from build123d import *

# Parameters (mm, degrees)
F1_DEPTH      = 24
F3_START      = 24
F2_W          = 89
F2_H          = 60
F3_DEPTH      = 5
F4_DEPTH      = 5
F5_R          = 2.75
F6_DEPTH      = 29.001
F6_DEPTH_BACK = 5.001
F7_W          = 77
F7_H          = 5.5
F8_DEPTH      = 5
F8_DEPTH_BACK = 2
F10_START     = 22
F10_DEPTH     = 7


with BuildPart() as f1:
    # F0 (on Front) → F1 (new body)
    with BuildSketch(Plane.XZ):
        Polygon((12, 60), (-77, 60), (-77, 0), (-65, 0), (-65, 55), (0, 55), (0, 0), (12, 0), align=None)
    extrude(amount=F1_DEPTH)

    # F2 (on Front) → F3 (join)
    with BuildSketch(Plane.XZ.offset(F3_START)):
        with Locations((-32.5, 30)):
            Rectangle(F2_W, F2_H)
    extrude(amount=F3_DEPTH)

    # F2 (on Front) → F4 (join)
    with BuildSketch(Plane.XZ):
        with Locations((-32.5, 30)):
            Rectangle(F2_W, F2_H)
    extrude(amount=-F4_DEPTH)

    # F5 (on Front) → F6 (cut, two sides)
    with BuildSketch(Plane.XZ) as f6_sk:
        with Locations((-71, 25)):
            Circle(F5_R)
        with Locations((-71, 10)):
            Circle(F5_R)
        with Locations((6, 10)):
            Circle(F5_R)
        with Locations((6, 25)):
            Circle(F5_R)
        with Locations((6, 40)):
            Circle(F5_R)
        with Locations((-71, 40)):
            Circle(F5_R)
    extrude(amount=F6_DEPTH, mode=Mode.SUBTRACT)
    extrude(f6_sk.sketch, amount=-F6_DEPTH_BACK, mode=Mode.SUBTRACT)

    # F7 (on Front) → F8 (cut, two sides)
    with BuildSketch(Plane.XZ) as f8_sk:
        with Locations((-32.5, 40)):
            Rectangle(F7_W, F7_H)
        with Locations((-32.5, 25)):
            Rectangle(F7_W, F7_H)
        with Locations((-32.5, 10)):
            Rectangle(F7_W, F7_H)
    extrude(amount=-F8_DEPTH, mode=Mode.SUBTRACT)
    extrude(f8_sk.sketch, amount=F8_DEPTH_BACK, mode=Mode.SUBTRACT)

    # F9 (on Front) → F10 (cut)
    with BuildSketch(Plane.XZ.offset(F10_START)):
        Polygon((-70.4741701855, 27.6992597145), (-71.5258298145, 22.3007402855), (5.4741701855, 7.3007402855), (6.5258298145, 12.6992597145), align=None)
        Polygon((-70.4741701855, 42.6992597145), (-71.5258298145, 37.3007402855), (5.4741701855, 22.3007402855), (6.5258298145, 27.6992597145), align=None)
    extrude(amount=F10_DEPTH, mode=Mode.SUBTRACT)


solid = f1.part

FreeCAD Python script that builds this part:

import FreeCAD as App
import Part
import Sketcher

V = App.Vector

doc = App.newDocument("Part")
body = doc.addObject("PartDesign::Body", "Body")

# Sketch on XZ plane
sketch1 = body.newObject("Sketcher::SketchObject", "Sketch")
sketch1.AttachmentSupport = (doc.getObject("XZ_Plane"), [""])
sketch1.MapMode = "FlatFace"
sketch1.addGeometry([
    Part.LineSegment(V(12, 60, 0), V(-77, 60, 0)),  # 0
    Part.LineSegment(V(-77, 60, 0), V(-77, 0, 0)),  # 1
    Part.LineSegment(V(-77, 0, 0), V(-65, 0, 0)),  # 2
    Part.LineSegment(V(-65, 0, 0), V(-65, 55, 0)),  # 3
    Part.LineSegment(V(-65, 55, 0), V(0, 55, 0)),  # 4
    Part.LineSegment(V(0, 55, 0), V(0, 0, 0)),  # 5
    Part.LineSegment(V(0, 0, 0), V(12, 0, 0)),  # 6
    Part.LineSegment(V(12, 0, 0), V(12, 60, 0)),  # 7
], False)
sketch1.addConstraint([
    Sketcher.Constraint("Coincident", 0, 2, 1, 1),
    Sketcher.Constraint("Coincident", 1, 2, 2, 1),
    Sketcher.Constraint("Coincident", 2, 2, 3, 1),
    Sketcher.Constraint("Coincident", 3, 2, 4, 1),
    Sketcher.Constraint("Coincident", 4, 2, 5, 1),
    Sketcher.Constraint("Coincident", 5, 2, 6, 1),
    Sketcher.Constraint("Coincident", 6, 2, 7, 1),
    Sketcher.Constraint("Coincident", 7, 2, 0, 1),
    Sketcher.Constraint("Horizontal", 0),
    Sketcher.Constraint("Vertical", 1),
    Sketcher.Constraint("Horizontal", 2),
    Sketcher.Constraint("Vertical", 3),
    Sketcher.Constraint("Horizontal", 4),
    Sketcher.Constraint("Vertical", 5),
    Sketcher.Constraint("Horizontal", 6),
    Sketcher.Constraint("Vertical", 7),
    Sketcher.Constraint("Coincident", 5, 2, -1, 1),
    Sketcher.Constraint("PointOnObject", 1, 2, -1),
    Sketcher.Constraint("Equal", 2, 6),
    Sketcher.Constraint("DistanceX", 0, 2, 0, 1, 89.0),
    Sketcher.Constraint("DistanceX", 2, 1, 2, 2, 12.0),
    Sketcher.Constraint("DistanceY", 1, 2, 1, 1, 60.0),
    Sketcher.Constraint("DistanceY", 3, 1, 3, 2, 55.0),
])
pad1 = body.newObject("PartDesign::Pad", "Pad")
pad1.Profile = sketch1
pad1.Length = 24

# Sketch on XZ plane
sketch2 = body.newObject("Sketcher::SketchObject", "Sketch001")
sketch2.AttachmentSupport = (doc.getObject("XZ_Plane"), [""])
sketch2.MapMode = "FlatFace"
sketch2.AttachmentOffset = App.Placement(V(0, 0, 24), App.Rotation())
sketch2.addGeometry([
    Part.LineSegment(V(-77, 60, 0), V(-77, 0, 0)),
    Part.LineSegment(V(-77, 0, 0), V(12, 0, 0)),
    Part.LineSegment(V(12, 0, 0), V(12, 60, 0)),
    Part.LineSegment(V(12, 60, 0), V(-77, 60, 0)),
], False)
sketch2.addConstraint([
    Sketcher.Constraint("Coincident", 0, 2, 1, 1),
    Sketcher.Constraint("Coincident", 1, 2, 2, 1),
    Sketcher.Constraint("Coincident", 2, 2, 3, 1),
    Sketcher.Constraint("Coincident", 3, 2, 0, 1),
    Sketcher.Constraint("Vertical", 0),
    Sketcher.Constraint("Horizontal", 1),
    Sketcher.Constraint("Vertical", 2),
    Sketcher.Constraint("Horizontal", 3),
    Sketcher.Constraint("PointOnObject", 0, 2, -1),
    Sketcher.Constraint("DistanceX", 1, 1, 1, 2, 89.0),
    Sketcher.Constraint("DistanceY", 0, 2, 0, 1, 60.0),
    Sketcher.Constraint("DistanceX", 0, 2, -1, 1, 77.0),
])
pad2 = body.newObject("PartDesign::Pad", "Pad001")
pad2.Profile = sketch2
pad2.Length = 5

# Sketch on XZ plane
sketch3 = body.newObject("Sketcher::SketchObject", "Sketch002")
sketch3.AttachmentSupport = (doc.getObject("XZ_Plane"), [""])
sketch3.MapMode = "FlatFace"
sketch3.addGeometry([
    Part.LineSegment(V(-77, 60, 0), V(-77, 0, 0)),
    Part.LineSegment(V(-77, 0, 0), V(12, 0, 0)),
    Part.LineSegment(V(12, 0, 0), V(12, 60, 0)),
    Part.LineSegment(V(12, 60, 0), V(-77, 60, 0)),
], False)
sketch3.addConstraint([
    Sketcher.Constraint("Coincident", 0, 2, 1, 1),
    Sketcher.Constraint("Coincident", 1, 2, 2, 1),
    Sketcher.Constraint("Coincident", 2, 2, 3, 1),
    Sketcher.Constraint("Coincident", 3, 2, 0, 1),
    Sketcher.Constraint("Vertical", 0),
    Sketcher.Constraint("Horizontal", 1),
    Sketcher.Constraint("Vertical", 2),
    Sketcher.Constraint("Horizontal", 3),
    Sketcher.Constraint("PointOnObject", 0, 2, -1),
    Sketcher.Constraint("DistanceX", 1, 1, 1, 2, 89.0),
    Sketcher.Constraint("DistanceY", 0, 2, 0, 1, 60.0),
    Sketcher.Constraint("DistanceX", 0, 2, -1, 1, 77.0),
])
pad3 = body.newObject("PartDesign::Pad", "Pad002")
pad3.Profile = sketch3
pad3.Length = 5
pad3.Reversed = True

# Sketch on XZ plane
sketch4 = body.newObject("Sketcher::SketchObject", "Sketch003")
sketch4.AttachmentSupport = (doc.getObject("XZ_Plane"), [""])
sketch4.MapMode = "FlatFace"
sketch4.addGeometry([
    Part.Circle(V(-71, 25, 0), V(0, 0, 1), 2.8),  # 0
    Part.Circle(V(-71, 10, 0), V(0, 0, 1), 2.8),  # 1
    Part.Circle(V(6, 10, 0), V(0, 0, 1), 2.8),  # 2
    Part.Circle(V(6, 25, 0), V(0, 0, 1), 2.8),  # 3
    Part.Circle(V(6, 40, 0), V(0, 0, 1), 2.8),  # 4
    Part.Circle(V(-71, 40, 0), V(0, 0, 1), 2.8),  # 5
], False)
sketch4.addConstraint([
    Sketcher.Constraint("Equal", 0, 1),
    Sketcher.Constraint("Equal", 1, 2),
    Sketcher.Constraint("Equal", 2, 3),
    Sketcher.Constraint("Equal", 3, 4),
    Sketcher.Constraint("Equal", 4, 5),
    Sketcher.Constraint("Horizontal", 1, 3, 2, 3),
    Sketcher.Constraint("Horizontal", 0, 3, 3, 3),
    Sketcher.Constraint("Horizontal", 4, 3, 5, 3),
    Sketcher.Constraint("Vertical", 0, 3, 1, 3),
    Sketcher.Constraint("Vertical", 2, 3, 3, 3),
    Sketcher.Constraint("Vertical", 3, 3, 4, 3),
    Sketcher.Constraint("Vertical", 1, 3, 5, 3),
    Sketcher.Constraint("Diameter", 0, 5.5),
    Sketcher.Constraint("DistanceX", 0, 3, -1, 1, 71.0),
    Sketcher.Constraint("DistanceY", -1, 1, 0, 3, 25.0),
    Sketcher.Constraint("DistanceY", -1, 1, 1, 3, 10.0),
    Sketcher.Constraint("DistanceX", -1, 1, 2, 3, 6.0),
    Sketcher.Constraint("DistanceY", -1, 1, 4, 3, 40.0),
])
pocket1 = body.newObject("PartDesign::Pocket", "Pocket")
pocket1.Profile = sketch4
pocket1.Type = "ThroughAll"
pocket1.Midplane = True

# Sketch on XZ plane
sketch5 = body.newObject("Sketcher::SketchObject", "Sketch004")
sketch5.AttachmentSupport = (doc.getObject("XZ_Plane"), [""])
sketch5.MapMode = "FlatFace"
sketch5.addGeometry([
    Part.LineSegment(V(-71, 43, 0), V(-71, 37, 0)),  # 0
    Part.LineSegment(V(-71, 37, 0), V(6, 37, 0)),  # 1
    Part.LineSegment(V(6, 37, 0), V(6, 43, 0)),  # 2
    Part.LineSegment(V(6, 43, 0), V(-71, 43, 0)),  # 3
    Part.LineSegment(V(-71, 28, 0), V(-71, 22, 0)),  # 4
    Part.LineSegment(V(-71, 22, 0), V(6, 22, 0)),  # 5
    Part.LineSegment(V(6, 22, 0), V(6, 28, 0)),  # 6
    Part.LineSegment(V(6, 28, 0), V(-71, 28, 0)),  # 7
    Part.LineSegment(V(-71, 13, 0), V(-71, 7, 0)),  # 8
    Part.LineSegment(V(-71, 7, 0), V(6, 7, 0)),  # 9
    Part.LineSegment(V(6, 7, 0), V(6, 13, 0)),  # 10
    Part.LineSegment(V(6, 13, 0), V(-71, 13, 0)),  # 11
], False)
sketch5.addConstraint([
    Sketcher.Constraint("Coincident", 0, 2, 1, 1),
    Sketcher.Constraint("Coincident", 1, 2, 2, 1),
    Sketcher.Constraint("Coincident", 2, 2, 3, 1),
    Sketcher.Constraint("Coincident", 3, 2, 0, 1),
    Sketcher.Constraint("Coincident", 4, 2, 5, 1),
    Sketcher.Constraint("Coincident", 5, 2, 6, 1),
    Sketcher.Constraint("Coincident", 6, 2, 7, 1),
    Sketcher.Constraint("Coincident", 7, 2, 4, 1),
    Sketcher.Constraint("Coincident", 8, 2, 9, 1),
    Sketcher.Constraint("Coincident", 9, 2, 10, 1),
    Sketcher.Constraint("Coincident", 10, 2, 11, 1),
    Sketcher.Constraint("Coincident", 11, 2, 8, 1),
    Sketcher.Constraint("Vertical", 0),
    Sketcher.Constraint("Horizontal", 1),
    Sketcher.Constraint("Vertical", 2),
    Sketcher.Constraint("Horizontal", 3),
    Sketcher.Constraint("Vertical", 4),
    Sketcher.Constraint("Horizontal", 5),
    Sketcher.Constraint("Vertical", 6),
    Sketcher.Constraint("Horizontal", 7),
    Sketcher.Constraint("Vertical", 8),
    Sketcher.Constraint("Horizontal", 9),
    Sketcher.Constraint("Vertical", 10),
    Sketcher.Constraint("Horizontal", 11),
    Sketcher.Constraint("Vertical", 3, 2, 4, 2),
    Sketcher.Constraint("Vertical", 2, 2, 5, 2),
    Sketcher.Constraint("Vertical", 7, 2, 8, 2),
    Sketcher.Constraint("Vertical", 6, 2, 9, 2),
    Sketcher.Constraint("Equal", 2, 4),
    Sketcher.Constraint("Equal", 6, 8),
    Sketcher.Constraint("DistanceX", 1, 1, 1, 2, 77.0),
    Sketcher.Constraint("DistanceY", 0, 2, 0, 1, 5.5),
    Sketcher.Constraint("DistanceX", 0, 2, -1, 1, 71.0),
    Sketcher.Constraint("DistanceY", 4, 2, 0, 2, 15.0),
    Sketcher.Constraint("DistanceY", 8, 2, 4, 2, 15.0),
    Sketcher.Constraint("DistanceY", -1, 1, 0, 2, 37.25),
])
pocket2 = body.newObject("PartDesign::Pocket", "Pocket001")
pocket2.Profile = sketch5
pocket2.Type = "TwoLengths"
pocket2.Length = 5
pocket2.Length2 = 2

# Sketch on XZ plane
sketch6 = body.newObject("Sketcher::SketchObject", "Sketch005")
sketch6.AttachmentSupport = (doc.getObject("XZ_Plane"), [""])
sketch6.MapMode = "FlatFace"
sketch6.AttachmentOffset = App.Placement(V(0, 0, 22), App.Rotation())
sketch6.addGeometry([
    Part.LineSegment(V(-70, 28, 0), V(-72, 22, 0)),  # 0
    Part.LineSegment(V(-72, 22, 0), V(5, 7, 0)),  # 1
    Part.LineSegment(V(5, 7, 0), V(7, 13, 0)),  # 2
    Part.LineSegment(V(7, 13, 0), V(-70, 28, 0)),  # 3
    Part.LineSegment(V(-70, 43, 0), V(-72, 37, 0)),  # 4
    Part.LineSegment(V(-72, 37, 0), V(5, 22, 0)),  # 5
    Part.LineSegment(V(5, 22, 0), V(7, 28, 0)),  # 6
    Part.LineSegment(V(7, 28, 0), V(-70, 43, 0)),  # 7
], False)
sketch6.addConstraint([
    Sketcher.Constraint("Coincident", 0, 2, 1, 1),
    Sketcher.Constraint("Coincident", 1, 2, 2, 1),
    Sketcher.Constraint("Coincident", 2, 2, 3, 1),
    Sketcher.Constraint("Coincident", 3, 2, 0, 1),
    Sketcher.Constraint("Coincident", 4, 2, 5, 1),
    Sketcher.Constraint("Coincident", 5, 2, 6, 1),
    Sketcher.Constraint("Coincident", 6, 2, 7, 1),
    Sketcher.Constraint("Coincident", 7, 2, 4, 1),
    Sketcher.Constraint("Perpendicular", 0, 1),
    Sketcher.Constraint("Perpendicular", 1, 2),
    Sketcher.Constraint("Perpendicular", 2, 3),
    Sketcher.Constraint("Perpendicular", 3, 4),
    Sketcher.Constraint("Perpendicular", 4, 5),
    Sketcher.Constraint("Perpendicular", 5, 6),
    Sketcher.Constraint("Perpendicular", 6, 7),
    Sketcher.Constraint("Horizontal", 0, 2, 5, 2),
    Sketcher.Constraint("Horizontal", 3, 2, 6, 2),
    Sketcher.Constraint("Vertical", 0, 2, 4, 2),
    Sketcher.Constraint("Vertical", 1, 2, 5, 2),
    Sketcher.Constraint("DistanceX", 0, 2, 1, 2, 77.0),
    Sketcher.Constraint("DistanceY", 1, 2, 0, 2, 15.0),
    Sketcher.Constraint("Distance", 0, 5.5),
    Sketcher.Constraint("DistanceX", 0, 2, -1, 1, 71.52583),
    Sketcher.Constraint("DistanceY", -1, 1, 0, 2, 22.30074),
])
pocket3 = body.newObject("PartDesign::Pocket", "Pocket002")
pocket3.Profile = sketch6
pocket3.Length = 7
pocket3.Reversed = True

doc.recompute()
